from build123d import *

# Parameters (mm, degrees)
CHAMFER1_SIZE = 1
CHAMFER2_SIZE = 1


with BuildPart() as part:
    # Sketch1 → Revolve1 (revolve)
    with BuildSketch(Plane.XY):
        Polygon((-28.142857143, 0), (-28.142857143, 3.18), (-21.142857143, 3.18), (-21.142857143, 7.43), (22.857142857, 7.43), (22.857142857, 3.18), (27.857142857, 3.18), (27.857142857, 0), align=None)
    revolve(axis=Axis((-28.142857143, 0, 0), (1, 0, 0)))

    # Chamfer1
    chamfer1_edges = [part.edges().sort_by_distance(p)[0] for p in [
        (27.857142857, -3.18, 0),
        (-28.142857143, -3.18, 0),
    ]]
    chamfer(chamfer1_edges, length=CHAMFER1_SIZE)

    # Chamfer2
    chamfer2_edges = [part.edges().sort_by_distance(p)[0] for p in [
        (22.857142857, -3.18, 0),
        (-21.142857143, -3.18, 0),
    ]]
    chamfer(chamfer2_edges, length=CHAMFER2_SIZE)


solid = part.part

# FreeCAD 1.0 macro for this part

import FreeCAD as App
import Part
import Sketcher
from FreeCAD import Vector
Q = App.Units.Quantity


def edges_at(feature, points):
    """Names of the edges that pass closest to the given points."""
    edges = feature.Shape.Edges
    near = lambda p: min(range(len(edges)), key=lambda i: edges[i].distToShape(Part.Vertex(*p))[0])
    return sorted({f"Edge{near(p) + 1}" for p in points})

doc = App.newDocument("Part")
body = doc.addObject("PartDesign::Body", "Body")

# Sketch on XY plane
sketch1 = body.newObject("Sketcher::SketchObject", "Sketch")
sketch1.AttachmentSupport = (doc.getObject("XY_Plane"), [""])
sketch1.MapMode = "FlatFace"
sketch1.addGeometry([
    Part.LineSegment(Vector(-28.1, 3.2, 0), Vector(-28.1, 0, 0)),  # 0
    Part.LineSegment(Vector(-28.1, 0, 0), Vector(27.9, 0, 0)),  # 1
    Part.LineSegment(Vector(27.9, 0, 0), Vector(27.9, 3.2, 0)),  # 2
    Part.LineSegment(Vector(27.9, 3.2, 0), Vector(22.9, 3.2, 0)),  # 3
    Part.LineSegment(Vector(22.9, 3.2, 0), Vector(22.9, 7.4, 0)),  # 4
    Part.LineSegment(Vector(22.9, 7.4, 0), Vector(-21.1, 7.4, 0)),  # 5
    Part.LineSegment(Vector(-21.1, 7.4, 0), Vector(-21.1, 3.2, 0)),  # 6
    Part.LineSegment(Vector(-21.1, 3.2, 0), Vector(-28.1, 3.2, 0)),  # 7
], False)
sketch1.addConstraint([
    Sketcher.Constraint("Coincident", 0, 2, 1, 1),
    Sketcher.Constraint("Coincident", 1, 2, 2, 1),
    Sketcher.Constraint("Coincident", 2, 2, 3, 1),
    Sketcher.Constraint("Coincident", 3, 2, 4, 1),
    Sketcher.Constraint("Coincident", 4, 2, 5, 1),
    Sketcher.Constraint("Coincident", 5, 2, 6, 1),
    Sketcher.Constraint("Coincident", 6, 2, 7, 1),
    Sketcher.Constraint("Coincident", 7, 2, 0, 1),
    Sketcher.Constraint("Vertical", 0),
    Sketcher.Constraint("Horizontal", 1),
    Sketcher.Constraint("Vertical", 2),
    Sketcher.Constraint("Horizontal", 3),
    Sketcher.Constraint("Vertical", 4),
    Sketcher.Constraint("Horizontal", 5),
    Sketcher.Constraint("Vertical", 6),
    Sketcher.Constraint("Horizontal", 7),
    Sketcher.Constraint("PointOnObject", 0, 2, -1),
    Sketcher.Constraint("Horizontal", 3, 2, 6, 2),
    Sketcher.Constraint("DistanceX", 1, 1, 1, 2, Q("56 mm")),
    Sketcher.Constraint("DistanceX", 3, 2, 3, 1, Q("5 mm")),
    Sketcher.Constraint("DistanceX", 5, 2, 5, 1, Q("44 mm")),
    Sketcher.Constraint("DistanceY", 0, 2, 0, 1, Q("3.18 mm")),
    Sketcher.Constraint("DistanceY", 4, 1, 4, 2, Q("4.25 mm")),
    Sketcher.Constraint("DistanceX", 0, 2, -1, 1, Q("28.142857 mm")),
])
revolution = body.newObject("PartDesign::Revolution", "Revolution")
revolution.Profile = sketch1
revolution.ReferenceAxis = (sketch1, ["H_Axis"])
revolution.Angle = 360
doc.recompute()

chamfer = body.newObject("PartDesign::Chamfer", "Chamfer")
chamfer.Base = (revolution, edges_at(revolution, [(27.857, -3.18, 0), (-28.143, -3.18, 0)]))
chamfer.Size = 1
doc.recompute()

chamfer2 = body.newObject("PartDesign::Chamfer", "Chamfer001")
chamfer2.Base = (chamfer, edges_at(chamfer, [(22.857, -3.18, 0), (-21.143, -3.18, 0)]))
chamfer2.Size = 1

doc.recompute()
